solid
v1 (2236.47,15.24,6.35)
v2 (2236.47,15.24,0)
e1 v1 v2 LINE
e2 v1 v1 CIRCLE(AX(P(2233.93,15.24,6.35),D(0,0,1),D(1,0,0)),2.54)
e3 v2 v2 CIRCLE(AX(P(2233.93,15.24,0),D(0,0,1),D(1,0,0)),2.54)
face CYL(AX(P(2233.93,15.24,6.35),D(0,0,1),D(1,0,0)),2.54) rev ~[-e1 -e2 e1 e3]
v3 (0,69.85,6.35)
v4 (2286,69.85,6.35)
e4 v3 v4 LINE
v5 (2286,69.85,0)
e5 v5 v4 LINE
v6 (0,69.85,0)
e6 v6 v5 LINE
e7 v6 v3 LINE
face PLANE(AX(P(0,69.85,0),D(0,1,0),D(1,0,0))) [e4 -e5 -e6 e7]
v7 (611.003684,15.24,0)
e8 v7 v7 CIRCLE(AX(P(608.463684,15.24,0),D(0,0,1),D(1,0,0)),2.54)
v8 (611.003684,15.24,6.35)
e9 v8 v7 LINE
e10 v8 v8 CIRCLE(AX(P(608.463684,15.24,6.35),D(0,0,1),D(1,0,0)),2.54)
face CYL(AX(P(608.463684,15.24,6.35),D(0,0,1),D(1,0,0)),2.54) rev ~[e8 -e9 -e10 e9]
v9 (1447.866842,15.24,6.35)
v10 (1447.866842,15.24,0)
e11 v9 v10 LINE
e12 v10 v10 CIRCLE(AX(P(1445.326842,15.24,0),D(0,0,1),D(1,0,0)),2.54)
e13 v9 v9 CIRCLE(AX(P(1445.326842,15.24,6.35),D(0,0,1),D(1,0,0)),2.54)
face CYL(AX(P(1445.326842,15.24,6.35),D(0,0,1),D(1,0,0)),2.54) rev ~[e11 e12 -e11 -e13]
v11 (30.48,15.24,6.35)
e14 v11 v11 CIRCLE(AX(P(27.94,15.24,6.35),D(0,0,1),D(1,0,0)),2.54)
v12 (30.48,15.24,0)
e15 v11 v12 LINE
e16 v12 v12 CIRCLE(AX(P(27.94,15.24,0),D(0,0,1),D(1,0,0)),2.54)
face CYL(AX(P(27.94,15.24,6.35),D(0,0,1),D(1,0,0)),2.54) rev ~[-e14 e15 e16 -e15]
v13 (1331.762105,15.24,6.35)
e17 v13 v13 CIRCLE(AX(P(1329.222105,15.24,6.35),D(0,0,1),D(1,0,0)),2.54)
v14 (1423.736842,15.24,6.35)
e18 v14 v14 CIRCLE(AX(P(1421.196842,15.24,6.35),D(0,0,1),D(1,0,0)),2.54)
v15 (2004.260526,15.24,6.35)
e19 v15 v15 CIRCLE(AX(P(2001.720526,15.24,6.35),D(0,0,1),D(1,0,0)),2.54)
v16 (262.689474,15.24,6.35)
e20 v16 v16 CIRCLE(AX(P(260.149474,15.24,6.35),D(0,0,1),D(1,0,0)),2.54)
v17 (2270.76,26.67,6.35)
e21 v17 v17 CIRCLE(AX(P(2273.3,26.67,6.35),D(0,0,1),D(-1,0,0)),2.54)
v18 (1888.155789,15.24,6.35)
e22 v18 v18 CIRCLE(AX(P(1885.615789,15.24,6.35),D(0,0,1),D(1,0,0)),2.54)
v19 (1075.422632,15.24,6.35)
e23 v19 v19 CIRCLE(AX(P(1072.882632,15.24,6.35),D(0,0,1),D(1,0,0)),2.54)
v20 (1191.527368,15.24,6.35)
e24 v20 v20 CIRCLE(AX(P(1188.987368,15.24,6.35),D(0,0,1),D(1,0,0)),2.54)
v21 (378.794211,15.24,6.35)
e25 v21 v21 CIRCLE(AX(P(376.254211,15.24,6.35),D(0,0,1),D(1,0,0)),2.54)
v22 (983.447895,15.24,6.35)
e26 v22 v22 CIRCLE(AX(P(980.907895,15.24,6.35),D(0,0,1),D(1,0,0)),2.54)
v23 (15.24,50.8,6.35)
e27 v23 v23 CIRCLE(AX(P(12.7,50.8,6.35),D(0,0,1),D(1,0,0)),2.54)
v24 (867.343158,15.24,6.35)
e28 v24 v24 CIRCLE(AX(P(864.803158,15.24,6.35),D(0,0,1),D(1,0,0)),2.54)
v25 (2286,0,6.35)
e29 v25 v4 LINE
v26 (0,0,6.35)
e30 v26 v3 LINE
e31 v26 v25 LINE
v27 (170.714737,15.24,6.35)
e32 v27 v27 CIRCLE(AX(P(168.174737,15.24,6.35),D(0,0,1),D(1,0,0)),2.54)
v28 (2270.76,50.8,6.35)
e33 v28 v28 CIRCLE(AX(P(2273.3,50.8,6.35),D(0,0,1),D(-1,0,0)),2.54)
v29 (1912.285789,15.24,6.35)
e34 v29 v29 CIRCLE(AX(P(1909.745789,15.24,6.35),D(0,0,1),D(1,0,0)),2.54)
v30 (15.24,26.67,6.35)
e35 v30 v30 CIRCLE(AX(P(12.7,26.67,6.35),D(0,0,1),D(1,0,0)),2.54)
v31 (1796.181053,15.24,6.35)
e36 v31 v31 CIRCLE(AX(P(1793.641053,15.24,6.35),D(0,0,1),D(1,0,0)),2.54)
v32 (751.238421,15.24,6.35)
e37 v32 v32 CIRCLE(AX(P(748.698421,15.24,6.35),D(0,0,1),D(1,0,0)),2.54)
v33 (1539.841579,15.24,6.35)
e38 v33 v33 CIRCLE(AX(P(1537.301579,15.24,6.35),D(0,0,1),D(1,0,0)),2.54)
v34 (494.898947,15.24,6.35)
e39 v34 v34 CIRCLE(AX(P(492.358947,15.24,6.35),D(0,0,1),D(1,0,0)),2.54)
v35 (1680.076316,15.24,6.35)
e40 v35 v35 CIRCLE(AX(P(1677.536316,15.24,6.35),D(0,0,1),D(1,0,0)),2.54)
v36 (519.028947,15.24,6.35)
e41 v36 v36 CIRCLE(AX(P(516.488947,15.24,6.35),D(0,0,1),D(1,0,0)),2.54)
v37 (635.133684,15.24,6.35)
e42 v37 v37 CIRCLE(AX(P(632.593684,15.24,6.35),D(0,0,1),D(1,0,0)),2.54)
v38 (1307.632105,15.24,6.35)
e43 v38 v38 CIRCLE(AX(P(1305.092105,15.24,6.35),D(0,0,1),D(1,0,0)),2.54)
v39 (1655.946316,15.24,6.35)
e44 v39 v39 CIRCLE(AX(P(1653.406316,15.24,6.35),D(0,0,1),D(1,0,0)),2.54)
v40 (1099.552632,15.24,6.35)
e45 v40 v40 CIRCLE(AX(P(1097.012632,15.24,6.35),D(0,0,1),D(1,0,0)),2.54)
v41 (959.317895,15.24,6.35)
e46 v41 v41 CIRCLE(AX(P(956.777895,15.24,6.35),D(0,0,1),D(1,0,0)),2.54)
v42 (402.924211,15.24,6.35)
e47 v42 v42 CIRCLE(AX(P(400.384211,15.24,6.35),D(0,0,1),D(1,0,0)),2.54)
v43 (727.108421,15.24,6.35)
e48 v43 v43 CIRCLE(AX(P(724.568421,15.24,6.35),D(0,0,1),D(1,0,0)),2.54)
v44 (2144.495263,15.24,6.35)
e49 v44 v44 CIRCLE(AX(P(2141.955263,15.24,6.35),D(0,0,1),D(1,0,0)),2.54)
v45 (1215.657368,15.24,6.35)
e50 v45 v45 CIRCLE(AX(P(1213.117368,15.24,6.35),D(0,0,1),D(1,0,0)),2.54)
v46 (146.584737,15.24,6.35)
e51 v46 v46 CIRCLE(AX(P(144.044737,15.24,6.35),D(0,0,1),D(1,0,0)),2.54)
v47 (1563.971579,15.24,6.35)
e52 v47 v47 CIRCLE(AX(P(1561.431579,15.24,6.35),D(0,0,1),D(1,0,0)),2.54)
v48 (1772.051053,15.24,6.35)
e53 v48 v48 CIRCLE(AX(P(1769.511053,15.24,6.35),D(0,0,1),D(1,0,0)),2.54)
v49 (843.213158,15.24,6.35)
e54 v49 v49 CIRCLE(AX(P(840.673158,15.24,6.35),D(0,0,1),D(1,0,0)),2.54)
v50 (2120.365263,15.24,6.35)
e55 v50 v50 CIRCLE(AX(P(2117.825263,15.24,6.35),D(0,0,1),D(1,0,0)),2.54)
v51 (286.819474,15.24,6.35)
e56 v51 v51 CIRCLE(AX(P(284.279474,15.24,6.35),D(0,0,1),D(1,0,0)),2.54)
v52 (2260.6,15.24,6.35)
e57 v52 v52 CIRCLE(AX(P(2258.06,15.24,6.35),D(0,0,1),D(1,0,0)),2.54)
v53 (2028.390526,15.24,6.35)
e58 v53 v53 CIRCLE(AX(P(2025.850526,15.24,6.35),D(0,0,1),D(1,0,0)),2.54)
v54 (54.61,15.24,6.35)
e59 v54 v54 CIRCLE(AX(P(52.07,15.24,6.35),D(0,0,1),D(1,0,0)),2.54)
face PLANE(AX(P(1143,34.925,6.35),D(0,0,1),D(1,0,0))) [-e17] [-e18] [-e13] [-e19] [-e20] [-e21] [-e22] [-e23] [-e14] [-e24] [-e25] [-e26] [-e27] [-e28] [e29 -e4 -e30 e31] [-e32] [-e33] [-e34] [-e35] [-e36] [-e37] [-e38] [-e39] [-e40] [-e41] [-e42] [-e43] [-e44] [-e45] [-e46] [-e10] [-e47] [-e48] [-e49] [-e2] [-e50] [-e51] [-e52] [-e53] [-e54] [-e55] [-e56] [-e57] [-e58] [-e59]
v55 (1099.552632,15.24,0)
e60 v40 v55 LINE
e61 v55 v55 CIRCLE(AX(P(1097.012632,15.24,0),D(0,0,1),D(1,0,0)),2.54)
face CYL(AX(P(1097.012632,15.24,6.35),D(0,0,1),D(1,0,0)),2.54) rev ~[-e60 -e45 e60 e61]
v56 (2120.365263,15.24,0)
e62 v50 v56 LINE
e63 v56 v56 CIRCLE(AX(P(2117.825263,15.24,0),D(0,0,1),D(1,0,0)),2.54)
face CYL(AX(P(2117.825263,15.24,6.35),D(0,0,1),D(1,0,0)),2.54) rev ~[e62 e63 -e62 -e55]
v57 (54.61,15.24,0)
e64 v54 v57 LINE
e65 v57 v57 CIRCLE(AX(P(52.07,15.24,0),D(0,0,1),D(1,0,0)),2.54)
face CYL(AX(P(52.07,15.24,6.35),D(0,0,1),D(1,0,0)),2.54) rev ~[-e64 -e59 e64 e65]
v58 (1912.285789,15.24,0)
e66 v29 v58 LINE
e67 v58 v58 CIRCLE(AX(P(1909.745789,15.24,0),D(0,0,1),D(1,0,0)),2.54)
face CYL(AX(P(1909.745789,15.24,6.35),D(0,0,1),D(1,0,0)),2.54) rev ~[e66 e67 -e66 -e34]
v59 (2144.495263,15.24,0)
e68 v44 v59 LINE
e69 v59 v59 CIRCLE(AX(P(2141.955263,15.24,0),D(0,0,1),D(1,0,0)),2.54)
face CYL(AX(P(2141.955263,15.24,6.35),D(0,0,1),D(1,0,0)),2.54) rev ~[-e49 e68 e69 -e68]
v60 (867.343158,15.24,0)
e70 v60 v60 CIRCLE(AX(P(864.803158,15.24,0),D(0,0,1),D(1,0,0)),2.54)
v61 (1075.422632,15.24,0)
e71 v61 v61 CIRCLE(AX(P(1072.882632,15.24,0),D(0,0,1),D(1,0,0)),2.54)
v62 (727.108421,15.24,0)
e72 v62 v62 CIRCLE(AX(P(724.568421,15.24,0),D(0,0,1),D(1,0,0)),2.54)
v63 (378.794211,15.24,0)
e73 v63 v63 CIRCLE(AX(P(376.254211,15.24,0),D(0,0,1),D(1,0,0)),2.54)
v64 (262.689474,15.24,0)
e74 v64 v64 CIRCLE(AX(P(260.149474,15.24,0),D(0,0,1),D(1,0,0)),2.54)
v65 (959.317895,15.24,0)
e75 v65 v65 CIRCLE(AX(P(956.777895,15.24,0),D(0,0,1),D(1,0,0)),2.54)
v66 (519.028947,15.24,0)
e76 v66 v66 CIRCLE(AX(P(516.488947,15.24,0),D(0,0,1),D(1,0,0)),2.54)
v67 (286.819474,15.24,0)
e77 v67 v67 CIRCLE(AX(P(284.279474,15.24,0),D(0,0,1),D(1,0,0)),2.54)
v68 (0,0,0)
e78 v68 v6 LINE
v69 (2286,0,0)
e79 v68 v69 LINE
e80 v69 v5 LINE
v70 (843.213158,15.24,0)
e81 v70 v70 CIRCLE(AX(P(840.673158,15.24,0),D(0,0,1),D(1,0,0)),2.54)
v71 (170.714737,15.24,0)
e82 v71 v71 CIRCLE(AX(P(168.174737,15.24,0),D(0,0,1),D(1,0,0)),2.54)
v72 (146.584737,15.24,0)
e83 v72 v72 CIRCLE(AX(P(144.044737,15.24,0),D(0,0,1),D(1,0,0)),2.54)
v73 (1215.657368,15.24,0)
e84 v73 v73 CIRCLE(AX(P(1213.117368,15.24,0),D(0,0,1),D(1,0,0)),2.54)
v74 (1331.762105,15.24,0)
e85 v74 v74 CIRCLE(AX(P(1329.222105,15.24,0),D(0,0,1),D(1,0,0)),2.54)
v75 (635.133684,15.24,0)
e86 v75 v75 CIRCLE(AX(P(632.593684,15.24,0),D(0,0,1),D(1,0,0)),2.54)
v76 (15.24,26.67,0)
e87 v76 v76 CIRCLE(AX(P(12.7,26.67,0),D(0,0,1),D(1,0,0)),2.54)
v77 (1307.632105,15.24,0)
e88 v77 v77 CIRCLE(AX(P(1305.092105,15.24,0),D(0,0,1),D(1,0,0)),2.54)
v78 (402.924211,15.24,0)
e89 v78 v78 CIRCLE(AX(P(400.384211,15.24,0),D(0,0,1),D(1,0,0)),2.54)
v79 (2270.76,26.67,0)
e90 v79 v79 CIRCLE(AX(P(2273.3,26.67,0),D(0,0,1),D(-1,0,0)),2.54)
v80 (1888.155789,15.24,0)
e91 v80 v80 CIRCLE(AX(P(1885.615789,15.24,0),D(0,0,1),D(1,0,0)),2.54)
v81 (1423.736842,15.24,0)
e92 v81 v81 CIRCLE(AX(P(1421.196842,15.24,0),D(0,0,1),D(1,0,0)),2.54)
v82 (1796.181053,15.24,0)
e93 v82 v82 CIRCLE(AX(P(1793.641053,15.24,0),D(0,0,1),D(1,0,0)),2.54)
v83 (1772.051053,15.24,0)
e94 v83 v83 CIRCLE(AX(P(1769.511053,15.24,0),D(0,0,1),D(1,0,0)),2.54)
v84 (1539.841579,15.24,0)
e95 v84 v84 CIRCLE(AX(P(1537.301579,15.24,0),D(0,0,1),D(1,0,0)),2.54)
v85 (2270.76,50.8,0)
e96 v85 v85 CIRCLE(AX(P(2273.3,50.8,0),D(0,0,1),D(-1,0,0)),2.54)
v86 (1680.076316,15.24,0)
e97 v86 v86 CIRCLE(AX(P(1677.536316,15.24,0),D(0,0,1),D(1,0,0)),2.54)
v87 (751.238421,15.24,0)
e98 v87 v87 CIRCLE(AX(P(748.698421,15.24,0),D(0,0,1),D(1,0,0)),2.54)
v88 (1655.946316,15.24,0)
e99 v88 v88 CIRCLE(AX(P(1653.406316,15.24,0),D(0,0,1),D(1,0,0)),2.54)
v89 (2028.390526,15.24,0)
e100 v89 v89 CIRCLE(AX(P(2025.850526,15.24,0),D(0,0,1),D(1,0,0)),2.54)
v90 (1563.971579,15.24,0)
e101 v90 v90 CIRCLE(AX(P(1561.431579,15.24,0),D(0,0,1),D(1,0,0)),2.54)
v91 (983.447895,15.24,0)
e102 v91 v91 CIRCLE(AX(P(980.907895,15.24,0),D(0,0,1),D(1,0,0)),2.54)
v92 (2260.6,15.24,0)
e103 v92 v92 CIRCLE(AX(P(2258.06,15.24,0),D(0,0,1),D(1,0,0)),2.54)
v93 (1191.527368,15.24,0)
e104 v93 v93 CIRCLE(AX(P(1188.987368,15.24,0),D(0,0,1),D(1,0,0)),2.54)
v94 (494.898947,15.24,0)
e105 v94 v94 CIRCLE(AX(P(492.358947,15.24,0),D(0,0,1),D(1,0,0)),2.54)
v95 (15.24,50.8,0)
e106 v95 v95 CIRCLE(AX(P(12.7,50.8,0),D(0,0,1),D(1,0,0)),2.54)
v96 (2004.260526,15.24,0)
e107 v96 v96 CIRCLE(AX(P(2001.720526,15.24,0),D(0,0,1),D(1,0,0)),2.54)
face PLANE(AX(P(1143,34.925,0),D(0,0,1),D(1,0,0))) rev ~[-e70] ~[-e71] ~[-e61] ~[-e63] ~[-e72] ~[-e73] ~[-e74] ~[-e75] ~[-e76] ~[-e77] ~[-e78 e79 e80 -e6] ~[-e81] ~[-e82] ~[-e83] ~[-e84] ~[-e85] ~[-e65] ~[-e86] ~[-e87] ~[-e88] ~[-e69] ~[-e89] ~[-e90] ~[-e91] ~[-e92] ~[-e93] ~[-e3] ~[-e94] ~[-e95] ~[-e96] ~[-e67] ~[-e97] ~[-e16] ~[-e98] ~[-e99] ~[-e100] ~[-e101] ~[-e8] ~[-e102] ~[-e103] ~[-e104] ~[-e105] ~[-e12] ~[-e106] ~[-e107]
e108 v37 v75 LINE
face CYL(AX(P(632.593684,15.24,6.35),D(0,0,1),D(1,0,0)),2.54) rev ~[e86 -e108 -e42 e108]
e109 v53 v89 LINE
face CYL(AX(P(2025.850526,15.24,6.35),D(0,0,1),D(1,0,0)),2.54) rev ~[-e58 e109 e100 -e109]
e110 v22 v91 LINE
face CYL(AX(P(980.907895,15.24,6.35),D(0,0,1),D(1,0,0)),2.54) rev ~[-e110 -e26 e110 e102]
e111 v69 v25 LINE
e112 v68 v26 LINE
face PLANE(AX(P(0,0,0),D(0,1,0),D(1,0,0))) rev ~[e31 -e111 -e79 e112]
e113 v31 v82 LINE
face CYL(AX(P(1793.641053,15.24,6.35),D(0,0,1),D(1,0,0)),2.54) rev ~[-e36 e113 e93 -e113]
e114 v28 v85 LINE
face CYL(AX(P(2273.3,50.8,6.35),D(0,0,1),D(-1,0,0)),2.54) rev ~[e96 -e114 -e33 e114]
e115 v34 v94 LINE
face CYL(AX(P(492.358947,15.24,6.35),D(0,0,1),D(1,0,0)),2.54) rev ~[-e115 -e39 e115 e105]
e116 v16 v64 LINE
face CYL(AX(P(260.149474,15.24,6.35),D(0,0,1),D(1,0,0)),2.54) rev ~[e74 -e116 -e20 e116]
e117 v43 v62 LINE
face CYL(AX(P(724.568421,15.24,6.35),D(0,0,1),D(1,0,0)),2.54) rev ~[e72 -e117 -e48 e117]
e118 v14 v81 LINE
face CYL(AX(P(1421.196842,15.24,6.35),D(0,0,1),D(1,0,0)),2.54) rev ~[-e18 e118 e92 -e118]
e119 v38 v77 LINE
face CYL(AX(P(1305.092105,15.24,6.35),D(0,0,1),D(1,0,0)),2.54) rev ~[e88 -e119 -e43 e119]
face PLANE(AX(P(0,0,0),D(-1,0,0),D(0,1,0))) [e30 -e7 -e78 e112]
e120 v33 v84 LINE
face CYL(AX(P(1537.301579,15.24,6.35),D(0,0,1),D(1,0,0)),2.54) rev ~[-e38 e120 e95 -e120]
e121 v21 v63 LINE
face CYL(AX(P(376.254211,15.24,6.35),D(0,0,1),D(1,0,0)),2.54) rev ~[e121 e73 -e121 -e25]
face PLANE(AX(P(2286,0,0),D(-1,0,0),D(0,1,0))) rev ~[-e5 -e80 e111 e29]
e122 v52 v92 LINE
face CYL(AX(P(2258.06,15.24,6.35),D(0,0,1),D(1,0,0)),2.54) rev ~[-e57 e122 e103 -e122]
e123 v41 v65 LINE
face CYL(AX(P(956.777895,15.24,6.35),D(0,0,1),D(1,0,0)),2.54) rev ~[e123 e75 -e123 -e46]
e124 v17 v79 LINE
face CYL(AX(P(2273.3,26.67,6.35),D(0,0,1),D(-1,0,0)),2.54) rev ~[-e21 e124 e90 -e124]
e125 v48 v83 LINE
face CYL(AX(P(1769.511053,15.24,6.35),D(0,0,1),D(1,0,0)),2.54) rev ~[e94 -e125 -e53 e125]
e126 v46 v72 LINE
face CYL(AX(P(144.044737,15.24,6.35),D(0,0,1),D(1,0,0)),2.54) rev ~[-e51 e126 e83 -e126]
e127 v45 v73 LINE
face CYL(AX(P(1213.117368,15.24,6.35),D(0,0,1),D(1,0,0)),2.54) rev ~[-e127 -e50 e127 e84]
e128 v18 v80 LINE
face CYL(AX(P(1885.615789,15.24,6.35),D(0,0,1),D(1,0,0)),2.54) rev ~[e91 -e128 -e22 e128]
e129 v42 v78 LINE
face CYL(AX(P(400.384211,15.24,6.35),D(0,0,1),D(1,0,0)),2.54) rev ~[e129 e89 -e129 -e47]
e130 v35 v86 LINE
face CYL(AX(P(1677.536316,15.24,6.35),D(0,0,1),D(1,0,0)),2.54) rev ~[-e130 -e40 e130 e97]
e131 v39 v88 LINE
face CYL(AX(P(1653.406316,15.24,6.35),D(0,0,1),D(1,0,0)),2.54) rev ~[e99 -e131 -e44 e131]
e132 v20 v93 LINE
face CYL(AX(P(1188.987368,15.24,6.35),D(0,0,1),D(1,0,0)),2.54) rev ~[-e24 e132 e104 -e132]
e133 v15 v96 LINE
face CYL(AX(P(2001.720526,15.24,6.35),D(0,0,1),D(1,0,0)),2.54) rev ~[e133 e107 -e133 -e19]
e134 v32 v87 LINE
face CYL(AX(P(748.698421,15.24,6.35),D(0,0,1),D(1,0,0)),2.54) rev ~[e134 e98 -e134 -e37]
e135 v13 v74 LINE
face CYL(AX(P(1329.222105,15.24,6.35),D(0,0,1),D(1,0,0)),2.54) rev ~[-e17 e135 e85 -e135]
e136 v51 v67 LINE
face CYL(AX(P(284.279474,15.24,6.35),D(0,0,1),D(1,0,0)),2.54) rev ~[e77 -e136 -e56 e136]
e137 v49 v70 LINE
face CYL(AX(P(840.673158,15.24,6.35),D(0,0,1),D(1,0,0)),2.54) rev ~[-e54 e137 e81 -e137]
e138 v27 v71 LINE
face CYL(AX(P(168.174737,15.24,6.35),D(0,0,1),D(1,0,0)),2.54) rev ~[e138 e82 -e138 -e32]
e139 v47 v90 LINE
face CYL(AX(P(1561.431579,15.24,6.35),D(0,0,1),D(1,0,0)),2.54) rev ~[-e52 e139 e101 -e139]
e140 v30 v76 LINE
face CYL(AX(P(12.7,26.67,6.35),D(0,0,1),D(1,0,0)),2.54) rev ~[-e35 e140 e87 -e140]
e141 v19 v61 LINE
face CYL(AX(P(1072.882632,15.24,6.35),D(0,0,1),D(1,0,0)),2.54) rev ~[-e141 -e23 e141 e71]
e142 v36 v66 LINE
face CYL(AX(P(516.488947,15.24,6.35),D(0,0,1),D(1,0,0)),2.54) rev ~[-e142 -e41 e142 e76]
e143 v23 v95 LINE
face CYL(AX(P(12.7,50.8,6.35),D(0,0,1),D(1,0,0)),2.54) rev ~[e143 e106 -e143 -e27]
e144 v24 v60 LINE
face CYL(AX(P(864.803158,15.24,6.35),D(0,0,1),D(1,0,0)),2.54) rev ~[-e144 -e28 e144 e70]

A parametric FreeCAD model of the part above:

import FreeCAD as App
import Part
import Sketcher
from FreeCAD import Vector
Q = App.Units.Quantity


def add_polygon(sketch, points):
    """Adds a closed chain of lines whose ends are joined by coincident constraints."""
    first, n = sketch.GeometryCount, len(points)
    for a, b in zip(points, points[1:] + points[:1]):
        sketch.addGeometry(Part.LineSegment(App.Vector(*a, 0), App.Vector(*b, 0)), False)
    for i in range(n):
        sketch.addConstraint(Sketcher.Constraint("Coincident", first + i, 2, first + (i + 1) % n, 1))

doc = App.newDocument("Part")
params = doc.addObject("Spreadsheet::Sheet", "Params")
for row, (alias, value) in enumerate([
    ("sketch1_width", "90 in"),
    ("sketch1_height", "2.75 in"),
    ("pad1_length", "0.25 in"),
    ("sketch2_diameter", "0.2 in"),
    ("pocket1_length", "0.25 in"),
    ("sketch3_diameter", "0.2 in"),
    ("pocket2_length", "0.25 in"),
    ("linearpattern_pitch", "116.104737 mm"),
], start=1):
    params.set(f"A{row}", alias)
    params.set(f"B{row}", "=" + value)
    params.setAlias(f"B{row}", alias)

body = doc.addObject("PartDesign::Body", "Body")

sketch1 = doc.addObject("Sketcher::SketchObject", "Sketch")
body.addObject(sketch1)
sketch1.AttachmentSupport = (doc.XY_Plane, [""])
sketch1.MapMode = "FlatFace"
add_polygon(sketch1, [(0, 70), (0, 0), (2286, 0), (2286, 70)])
sketch1.addConstraint(Sketcher.Constraint("Vertical", 0))
sketch1.addConstraint(Sketcher.Constraint("Horizontal", 1))
sketch1.addConstraint(Sketcher.Constraint("Vertical", 2))
sketch1.addConstraint(Sketcher.Constraint("Horizontal", 3))
sketch1.addConstraint(Sketcher.Constraint("Coincident", 0, 2, -1, 1))
sketch1.addConstraint(Sketcher.Constraint("DistanceX", 1, 1, 1, 2, Q("90 in")))
sketch1.addConstraint(Sketcher.Constraint("DistanceY", 0, 2, 0, 1, Q("2.75 in")))
sketch1.setExpression("Constraints[9]", "Params.sketch1_width")
sketch1.setExpression("Constraints[10]", "Params.sketch1_height")
pad1 = doc.addObject("PartDesign::Pad", "Pad")
body.addObject(pad1)
pad1.Profile = sketch1
pad1.setExpression("Length", "Params.pad1_length")

sketch2 = doc.addObject("Sketcher::SketchObject", "Sketch001")
body.addObject(sketch2)
sketch2.AttachmentSupport = (doc.XY_Plane, [""])
sketch2.MapMode = "FlatFace"
sketch2.AttachmentOffset = App.Placement(Vector(0, 0, 0.25 * 25.4), App.Rotation())
sketch2.addGeometry(Part.Circle(Vector(27.9, 15.2, 0), Vector(0, 0, 1), 2.5), False)
sketch2.addGeometry(Part.Circle(Vector(52.1, 15.2, 0), Vector(0, 0, 1), 2.5), False)
sketch2.addConstraint(Sketcher.Constraint("Equal", 0, 1))
sketch2.addConstraint(Sketcher.Constraint("Horizontal", 0, 3, 1, 3))
sketch2.addConstraint(Sketcher.Constraint("Diameter", 0, Q("0.2 in")))
sketch2.addConstraint(Sketcher.Constraint("DistanceX", -1, 1, 0, 3, Q("1.1 in")))
sketch2.addConstraint(Sketcher.Constraint("DistanceY", -1, 1, 0, 3, Q("0.6 in")))
sketch2.addConstraint(Sketcher.Constraint("DistanceX", -1, 1, 1, 3, Q("2.05 in")))
sketch2.setExpression("Constraints[2]", "Params.sketch2_diameter")
pocket1 = doc.addObject("PartDesign::Pocket", "Pocket")
body.addObject(pocket1)
pocket1.Profile = sketch2
pocket1.setExpression("Length", "Params.pocket1_length")

sketch3 = doc.addObject("Sketcher::SketchObject", "Sketch002")
body.addObject(sketch3)
sketch3.AttachmentSupport = (doc.XY_Plane, [""])
sketch3.MapMode = "FlatFace"
sketch3.AttachmentOffset = App.Placement(Vector(0, 0, 0.25 * 25.4), App.Rotation())
sketch3.addGeometry(Part.Circle(Vector(12.7, 26.7, 0), Vector(0, 0, 1), 2.5), False)
sketch3.addGeometry(Part.Circle(Vector(12.7, 50.8, 0), Vector(0, 0, 1), 2.5), False)
sketch3.addGeometry(Part.Circle(Vector(2273.3, 26.7, 0), Vector(0, 0, 1), 2.5), False)
sketch3.addGeometry(Part.Circle(Vector(2273.3, 50.8, 0), Vector(0, 0, 1), 2.5), False)
sketch3.addConstraint(Sketcher.Constraint("Equal", 0, 1))
sketch3.addConstraint(Sketcher.Constraint("Equal", 1, 2))
sketch3.addConstraint(Sketcher.Constraint("Equal", 2, 3))
sketch3.addConstraint(Sketcher.Constraint("Horizontal", 0, 3, 2, 3))
sketch3.addConstraint(Sketcher.Constraint("Horizontal", 1, 3, 3, 3))
sketch3.addConstraint(Sketcher.Constraint("Vertical", 0, 3, 1, 3))
sketch3.addConstraint(Sketcher.Constraint("Vertical", 2, 3, 3, 3))
sketch3.addConstraint(Sketcher.Constraint("Diameter", 0, Q("0.2 in")))
sketch3.addConstraint(Sketcher.Constraint("DistanceY", -1, 1, 1, 3, Q("2 in")))
sketch3.addConstraint(Sketcher.Constraint("DistanceX", 0, 3, 2, 3, Q("89 in")))
sketch3.addConstraint(Sketcher.Constraint("DistanceX", -1, 1, 0, 3, Q("0.5 in")))
sketch3.addConstraint(Sketcher.Constraint("DistanceY", -1, 1, 0, 3, Q("1.05 in")))
sketch3.setExpression("Constraints[7]", "Params.sketch3_diameter")
pocket2 = doc.addObject("PartDesign::Pocket", "Pocket001")
body.addObject(pocket2)
pocket2.Profile = sketch3
pocket2.setExpression("Length", "Params.pocket2_length")
doc.recompute()

linearpattern = doc.addObject("PartDesign::LinearPattern", "LinearPattern")
body.addObject(linearpattern)
linearpattern.Originals = [pocket1]
linearpattern.Direction = (doc.X_Axis, [""])
linearpattern.Mode = "offset"
linearpattern.setExpression("Offset", "Params.linearpattern_pitch")
linearpattern.Occurrences = 20
body.Tip = linearpattern

doc.recompute()
